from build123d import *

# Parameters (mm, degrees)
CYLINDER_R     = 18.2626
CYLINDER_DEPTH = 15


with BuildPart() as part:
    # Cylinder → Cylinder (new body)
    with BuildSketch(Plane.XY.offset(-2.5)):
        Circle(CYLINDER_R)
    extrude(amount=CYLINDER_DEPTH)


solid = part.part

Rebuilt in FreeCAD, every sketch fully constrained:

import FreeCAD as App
import Part
import Sketcher
Q = App.Units.Quantity

doc = App.newDocument("Part")
body = doc.addObject("PartDesign::Body", "Body")

# Sketch on XY plane
sketch1 = body.newObject("Sketcher::SketchObject", "Sketch")
sketch1.AttachmentSupport = (doc.getObject("XY_Plane"), [""])
sketch1.MapMode = "FlatFace"
sketch1.AttachmentOffset = App.Placement(App.Vector(0, 0, -2.5), App.Rotation())
sketch1.addGeometry(Part.Circle(App.Vector(0, 0, 0), App.Vector(0, 0, 1), 18.2626), False)
sketch1.addConstraint([
    Sketcher.Constraint("Coincident", 0, 3, -1, 1),
    Sketcher.Constraint("Diameter", 0, Q("36.5252 mm")),
])
pad1 = body.newObject("PartDesign::Pad", "Pad")
pad1.Profile = sketch1
pad1.Length = 15

doc.recompute()
